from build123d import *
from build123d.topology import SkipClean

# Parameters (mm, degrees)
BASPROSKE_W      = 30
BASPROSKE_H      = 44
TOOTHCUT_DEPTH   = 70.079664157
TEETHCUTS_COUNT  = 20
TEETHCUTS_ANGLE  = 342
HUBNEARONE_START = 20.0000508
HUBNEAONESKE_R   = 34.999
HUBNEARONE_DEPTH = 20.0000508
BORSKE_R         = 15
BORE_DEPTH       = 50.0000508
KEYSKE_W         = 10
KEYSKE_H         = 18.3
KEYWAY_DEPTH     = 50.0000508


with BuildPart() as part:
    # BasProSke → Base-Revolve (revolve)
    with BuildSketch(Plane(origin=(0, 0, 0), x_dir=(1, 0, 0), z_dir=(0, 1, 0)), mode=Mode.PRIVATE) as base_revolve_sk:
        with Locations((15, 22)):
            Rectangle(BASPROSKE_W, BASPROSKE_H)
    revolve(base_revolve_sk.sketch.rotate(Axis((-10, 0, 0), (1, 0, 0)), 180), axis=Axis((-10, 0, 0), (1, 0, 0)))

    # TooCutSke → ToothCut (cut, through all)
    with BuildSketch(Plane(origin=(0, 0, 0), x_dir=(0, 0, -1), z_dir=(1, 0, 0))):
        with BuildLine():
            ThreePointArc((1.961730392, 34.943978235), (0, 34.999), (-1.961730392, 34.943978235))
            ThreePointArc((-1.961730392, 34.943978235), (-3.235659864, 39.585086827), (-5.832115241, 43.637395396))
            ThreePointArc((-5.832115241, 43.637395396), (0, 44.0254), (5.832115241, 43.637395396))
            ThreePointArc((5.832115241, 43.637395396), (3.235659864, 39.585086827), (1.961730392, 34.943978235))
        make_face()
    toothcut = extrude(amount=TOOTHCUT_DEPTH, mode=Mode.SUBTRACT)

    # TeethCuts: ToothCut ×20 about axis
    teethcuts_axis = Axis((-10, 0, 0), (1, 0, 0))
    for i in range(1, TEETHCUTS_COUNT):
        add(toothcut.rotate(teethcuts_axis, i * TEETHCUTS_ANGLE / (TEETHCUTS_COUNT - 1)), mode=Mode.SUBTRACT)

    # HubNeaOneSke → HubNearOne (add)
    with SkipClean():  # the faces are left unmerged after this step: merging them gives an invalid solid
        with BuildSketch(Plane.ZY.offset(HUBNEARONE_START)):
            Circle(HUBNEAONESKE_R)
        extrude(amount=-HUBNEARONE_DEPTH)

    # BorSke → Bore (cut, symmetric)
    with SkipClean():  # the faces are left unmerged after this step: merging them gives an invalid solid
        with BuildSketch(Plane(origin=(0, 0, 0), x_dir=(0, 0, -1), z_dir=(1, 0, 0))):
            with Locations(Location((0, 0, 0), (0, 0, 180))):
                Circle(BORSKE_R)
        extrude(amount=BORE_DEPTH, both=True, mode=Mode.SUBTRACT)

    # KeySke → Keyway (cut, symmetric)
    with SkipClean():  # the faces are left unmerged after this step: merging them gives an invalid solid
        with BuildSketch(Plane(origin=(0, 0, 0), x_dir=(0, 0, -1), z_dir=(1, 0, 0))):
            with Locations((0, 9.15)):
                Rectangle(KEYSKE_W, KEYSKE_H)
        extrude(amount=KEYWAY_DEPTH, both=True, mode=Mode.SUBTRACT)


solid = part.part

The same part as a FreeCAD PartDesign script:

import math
import FreeCAD as App
import Part
import Sketcher

doc = App.newDocument("Part")
body = doc.addObject("PartDesign::Body", "Body")

# Sketch on XZ plane
sketch1 = doc.addObject("Sketcher::SketchObject", "Sketch")
body.addObject(sketch1)
sketch1.AttachmentSupport = (doc.XZ_Plane, [""])
sketch1.MapMode = "FlatFace"
sketch1.addGeometry([
    Part.LineSegment(App.Vector(0, -44, 0), App.Vector(0, 0, 0)),
    Part.LineSegment(App.Vector(0, 0, 0), App.Vector(30, 0, 0)),
    Part.LineSegment(App.Vector(30, 0, 0), App.Vector(30, -44, 0)),
    Part.LineSegment(App.Vector(30, -44, 0), App.Vector(0, -44, 0)),
], False)
sketch1.addConstraint([
    Sketcher.Constraint("Coincident", 0, 2, 1, 1),
    Sketcher.Constraint("Coincident", 1, 2, 2, 1),
    Sketcher.Constraint("Coincident", 2, 2, 3, 1),
    Sketcher.Constraint("Coincident", 3, 2, 0, 1),
    Sketcher.Constraint("Vertical", 0),
    Sketcher.Constraint("Horizontal", 1),
    Sketcher.Constraint("Vertical", 2),
    Sketcher.Constraint("Horizontal", 3),
    Sketcher.Constraint("Coincident", 0, 2, -1, 1),
    Sketcher.Constraint("DistanceX", 1, 1, 1, 2, 30.0),
    Sketcher.Constraint("DistanceY", 0, 1, 0, 2, 44.0),
])
revolution = doc.addObject("PartDesign::Revolution", "Revolution")
body.addObject(revolution)
revolution.Profile = sketch1
revolution.ReferenceAxis = (sketch1, ["H_Axis"])
revolution.Angle = 360

# Sketch on YZ plane
sketch2 = doc.addObject("Sketcher::SketchObject", "Sketch001")
body.addObject(sketch2)
sketch2.AttachmentSupport = (doc.YZ_Plane, [""])
sketch2.MapMode = "FlatFace"
sketch2.addGeometry([
    Part.ArcOfCircle(Part.Circle(App.Vector(0, 0, 0), App.Vector(0, 0, 1), 34.999), math.radians(-3.213172), math.radians(3.213172)),
    Part.ArcOfCircle(Part.Circle(App.Vector(33.077544, -17.852496, 0), App.Vector(0, 0, 1), 16), math.radians(48.700838), math.radians(83.301075)),
    Part.ArcOfCircle(Part.Circle(App.Vector(0, 0, 0), App.Vector(0, 0, 1), 44.0254), math.radians(-7.61244), math.radians(7.61244)),
    Part.ArcOfCircle(Part.Circle(App.Vector(33.077544, 17.852496, 0), App.Vector(0, 0, 1), 16), math.radians(-83.301075), math.radians(-48.700838)),
], False)
sketch2.addConstraint([
    Sketcher.Constraint("Coincident", 0, 1, 1, 2),
    Sketcher.Constraint("Coincident", 1, 1, 2, 1),
    Sketcher.Constraint("Coincident", 2, 2, 3, 2),
    Sketcher.Constraint("Coincident", 3, 1, 0, 2),
    Sketcher.Constraint("Coincident", 0, 3, -1, 1),
    Sketcher.Constraint("Coincident", 2, 3, -1, 1),
    Sketcher.Constraint("Radius", 1, 16.0),
    Sketcher.Constraint("Radius", 3, 16.0),
    Sketcher.Constraint("Radius", 0, 34.999),
    Sketcher.Constraint("Radius", 2, 44.0254),
    Sketcher.Constraint("DistanceX", -1, 1, 0, 1, 34.943978),
    Sketcher.Constraint("DistanceX", -1, 1, 3, 1, 34.943978),
    Sketcher.Constraint("DistanceY", 1, 3, 3, 3, 35.704992),
    Sketcher.Constraint("DistanceX", 1, 3, 1, 1, 10.559851),
])
pocket1 = doc.addObject("PartDesign::Pocket", "Pocket")
body.addObject(pocket1)
pocket1.Profile = sketch2
pocket1.Type = "ThroughAll"
pocket1.Reversed = True
doc.recompute()

polarpattern = doc.addObject("PartDesign::PolarPattern", "PolarPattern")
body.addObject(polarpattern)
polarpattern.Originals = [pocket1]
polarpattern.Axis = (doc.X_Axis, [""])
polarpattern.Angle = 360
polarpattern.Occurrences = 20
body.Tip = polarpattern

# Sketch on YZ plane
sketch3 = doc.addObject("Sketcher::SketchObject", "Sketch002")
body.addObject(sketch3)
sketch3.AttachmentSupport = (doc.YZ_Plane, [""])
sketch3.MapMode = "FlatFace"
sketch3.AttachmentOffset = App.Placement(App.Vector(0, 0, -20.000051), App.Rotation())
sketch3.addGeometry(Part.Circle(App.Vector(0, 0, 0), App.Vector(0, 0, 1), 34.999), False)
sketch3.addConstraint([
    Sketcher.Constraint("Coincident", 0, 3, -1, 1),
    Sketcher.Constraint("Diameter", 0, 69.998),
])
pad1 = doc.addObject("PartDesign::Pad", "Pad")
body.addObject(pad1)
pad1.Profile = sketch3
pad1.Length = 20.000051

# Sketch on YZ plane
sketch4 = doc.addObject("Sketcher::SketchObject", "Sketch003")
body.addObject(sketch4)
sketch4.AttachmentSupport = (doc.YZ_Plane, [""])
sketch4.MapMode = "FlatFace"
sketch4.addGeometry(Part.Circle(App.Vector(0, 0, 0), App.Vector(0, 0, 1), 15), False)
sketch4.addConstraint([
    Sketcher.Constraint("Coincident", 0, 3, -1, 1),
    Sketcher.Constraint("Diameter", 0, 30.0),
])
pocket2 = doc.addObject("PartDesign::Pocket", "Pocket001")
body.addObject(pocket2)
pocket2.Profile = sketch4
pocket2.Length = 100.000102
pocket2.Midplane = True

# Sketch on YZ plane
sketch5 = doc.addObject("Sketcher::SketchObject", "Sketch004")
body.addObject(sketch5)
sketch5.AttachmentSupport = (doc.YZ_Plane, [""])
sketch5.MapMode = "FlatFace"
sketch5.addGeometry([
    Part.LineSegment(App.Vector(18.3, 5, 0), App.Vector(0, 5, 0)),
    Part.LineSegment(App.Vector(0, 5, 0), App.Vector(0, -5, 0)),
    Part.LineSegment(App.Vector(0, -5, 0), App.Vector(18.3, -5, 0)),
    Part.LineSegment(App.Vector(18.3, -5, 0), App.Vector(18.3, 5, 0)),
], False)
sketch5.addConstraint([
    Sketcher.Constraint("Coincident", 0, 2, 1, 1),
    Sketcher.Constraint("Coincident", 1, 2, 2, 1),
    Sketcher.Constraint("Coincident", 2, 2, 3, 1),
    Sketcher.Constraint("Coincident", 3, 2, 0, 1),
    Sketcher.Constraint("Horizontal", 0),
    Sketcher.Constraint("Vertical", 1),
    Sketcher.Constraint("Horizontal", 2),
    Sketcher.Constraint("Vertical", 3),
    Sketcher.Constraint("Symmetric", 0, 2, 1, 2, -1, 1),
    Sketcher.Constraint("DistanceY", 1, 2, 1, 1, 10.0),
    Sketcher.Constraint("DistanceX", 0, 2, 0, 1, 18.3),
])
pocket3 = doc.addObject("PartDesign::Pocket", "Pocket002")
body.addObject(pocket3)
pocket3.Profile = sketch5
pocket3.Length = 100.000102
pocket3.Midplane = True

doc.recompute()
